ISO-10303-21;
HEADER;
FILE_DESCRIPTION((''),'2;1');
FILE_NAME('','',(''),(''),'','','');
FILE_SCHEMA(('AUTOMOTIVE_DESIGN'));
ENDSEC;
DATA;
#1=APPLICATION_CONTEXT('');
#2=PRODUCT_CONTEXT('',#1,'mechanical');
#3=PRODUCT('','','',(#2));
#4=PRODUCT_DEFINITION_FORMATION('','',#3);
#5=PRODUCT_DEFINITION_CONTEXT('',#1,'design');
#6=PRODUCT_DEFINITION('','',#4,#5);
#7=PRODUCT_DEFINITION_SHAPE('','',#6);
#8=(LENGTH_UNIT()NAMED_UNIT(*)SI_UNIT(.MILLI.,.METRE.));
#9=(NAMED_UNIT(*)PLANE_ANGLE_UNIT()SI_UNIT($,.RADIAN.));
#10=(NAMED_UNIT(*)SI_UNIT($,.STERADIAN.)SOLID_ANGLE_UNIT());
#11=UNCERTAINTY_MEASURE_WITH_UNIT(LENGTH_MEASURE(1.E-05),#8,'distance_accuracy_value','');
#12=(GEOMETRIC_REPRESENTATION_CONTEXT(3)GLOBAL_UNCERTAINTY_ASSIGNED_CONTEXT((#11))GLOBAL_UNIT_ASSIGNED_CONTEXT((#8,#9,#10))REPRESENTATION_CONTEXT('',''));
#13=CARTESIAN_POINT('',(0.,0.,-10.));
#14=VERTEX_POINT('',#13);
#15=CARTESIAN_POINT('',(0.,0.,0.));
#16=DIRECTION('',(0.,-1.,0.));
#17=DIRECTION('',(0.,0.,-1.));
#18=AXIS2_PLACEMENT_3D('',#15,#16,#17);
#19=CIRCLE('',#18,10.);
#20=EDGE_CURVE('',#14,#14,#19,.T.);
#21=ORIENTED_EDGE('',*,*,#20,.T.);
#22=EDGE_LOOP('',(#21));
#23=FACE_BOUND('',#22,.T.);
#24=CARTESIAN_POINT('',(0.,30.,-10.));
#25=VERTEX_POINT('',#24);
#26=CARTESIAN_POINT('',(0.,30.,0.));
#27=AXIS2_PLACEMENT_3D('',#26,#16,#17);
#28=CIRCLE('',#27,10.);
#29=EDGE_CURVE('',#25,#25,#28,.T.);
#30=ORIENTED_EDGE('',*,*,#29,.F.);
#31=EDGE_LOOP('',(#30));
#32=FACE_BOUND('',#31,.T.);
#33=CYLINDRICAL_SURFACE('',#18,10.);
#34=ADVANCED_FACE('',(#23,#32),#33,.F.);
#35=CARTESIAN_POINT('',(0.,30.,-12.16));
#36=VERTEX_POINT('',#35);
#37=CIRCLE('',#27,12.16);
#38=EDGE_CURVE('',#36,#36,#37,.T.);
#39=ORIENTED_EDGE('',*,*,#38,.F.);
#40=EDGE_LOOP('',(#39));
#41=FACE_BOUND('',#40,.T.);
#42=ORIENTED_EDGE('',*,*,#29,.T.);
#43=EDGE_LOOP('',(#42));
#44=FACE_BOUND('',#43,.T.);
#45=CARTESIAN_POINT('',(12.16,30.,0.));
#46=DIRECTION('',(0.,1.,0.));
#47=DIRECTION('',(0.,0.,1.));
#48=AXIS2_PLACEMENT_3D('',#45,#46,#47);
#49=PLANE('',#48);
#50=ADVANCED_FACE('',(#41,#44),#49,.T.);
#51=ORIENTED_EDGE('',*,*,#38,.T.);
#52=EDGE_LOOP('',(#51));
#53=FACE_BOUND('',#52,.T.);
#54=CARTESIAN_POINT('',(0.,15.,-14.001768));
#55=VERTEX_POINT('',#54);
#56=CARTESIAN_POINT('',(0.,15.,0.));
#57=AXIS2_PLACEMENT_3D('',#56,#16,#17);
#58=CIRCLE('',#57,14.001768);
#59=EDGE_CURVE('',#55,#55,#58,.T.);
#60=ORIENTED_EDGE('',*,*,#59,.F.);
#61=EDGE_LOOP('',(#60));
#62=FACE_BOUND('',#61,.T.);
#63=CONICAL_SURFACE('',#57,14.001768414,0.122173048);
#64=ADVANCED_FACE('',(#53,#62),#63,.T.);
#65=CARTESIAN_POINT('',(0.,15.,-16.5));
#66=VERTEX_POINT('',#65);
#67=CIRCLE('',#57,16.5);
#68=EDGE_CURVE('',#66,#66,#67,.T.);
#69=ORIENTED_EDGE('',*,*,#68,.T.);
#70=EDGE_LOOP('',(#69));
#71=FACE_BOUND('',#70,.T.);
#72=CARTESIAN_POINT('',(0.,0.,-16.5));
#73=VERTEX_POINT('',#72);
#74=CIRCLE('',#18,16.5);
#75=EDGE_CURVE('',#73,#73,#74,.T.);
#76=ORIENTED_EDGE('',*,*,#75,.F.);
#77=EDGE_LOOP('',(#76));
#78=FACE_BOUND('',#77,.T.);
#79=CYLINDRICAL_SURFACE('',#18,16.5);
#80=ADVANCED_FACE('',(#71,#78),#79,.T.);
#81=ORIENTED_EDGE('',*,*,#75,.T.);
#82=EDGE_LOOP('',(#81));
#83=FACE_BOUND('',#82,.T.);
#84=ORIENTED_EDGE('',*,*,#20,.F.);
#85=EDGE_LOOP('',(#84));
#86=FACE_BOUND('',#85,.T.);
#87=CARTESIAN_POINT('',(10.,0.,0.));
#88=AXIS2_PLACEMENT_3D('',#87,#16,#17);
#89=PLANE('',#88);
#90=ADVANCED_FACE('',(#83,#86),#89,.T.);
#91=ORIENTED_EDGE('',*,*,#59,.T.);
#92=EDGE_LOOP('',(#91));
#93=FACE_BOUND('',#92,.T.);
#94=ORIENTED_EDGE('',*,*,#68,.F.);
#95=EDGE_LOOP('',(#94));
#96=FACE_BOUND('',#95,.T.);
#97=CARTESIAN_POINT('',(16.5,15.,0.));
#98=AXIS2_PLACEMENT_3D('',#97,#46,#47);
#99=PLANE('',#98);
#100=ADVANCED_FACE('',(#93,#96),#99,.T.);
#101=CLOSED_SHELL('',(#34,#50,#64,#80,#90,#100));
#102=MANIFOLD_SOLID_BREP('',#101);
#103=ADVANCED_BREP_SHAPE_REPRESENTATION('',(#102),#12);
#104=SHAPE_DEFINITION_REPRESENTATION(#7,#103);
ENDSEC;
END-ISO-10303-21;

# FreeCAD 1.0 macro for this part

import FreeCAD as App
import Part
import Sketcher
Q = App.Units.Quantity


def add_polygon(sketch, points):
    """Adds a closed chain of lines whose ends are joined by coincident constraints."""
    first, n = sketch.GeometryCount, len(points)
    for a, b in zip(points, points[1:] + points[:1]):
        sketch.addGeometry(Part.LineSegment(App.Vector(*a, 0), App.Vector(*b, 0)), False)
    for i in range(n):
        sketch.addConstraint(Sketcher.Constraint("Coincident", first + i, 2, first + (i + 1) % n, 1))

doc = App.newDocument("Part")
body = doc.addObject("PartDesign::Body", "Body")

sketch1 = doc.addObject("Sketcher::SketchObject", "Sketch")
body.addObject(sketch1)
sketch1.AttachmentSupport = (doc.XY_Plane, [""])
sketch1.MapMode = "FlatFace"
add_polygon(sketch1, [(10, 30), (10, 0), (16.5, 0), (16.5, 15), (14, 15), (12.2, 30)])
sketch1.addConstraint([
    Sketcher.Constraint("Vertical", 0),
    Sketcher.Constraint("Horizontal", 1),
    Sketcher.Constraint("Vertical", 2),
    Sketcher.Constraint("Horizontal", 3),
    Sketcher.Constraint("Horizontal", 5),
    Sketcher.Constraint("PointOnObject", 0, 2, -1),
    Sketcher.Constraint("DistanceY", 0, 2, 0, 1, 30.0),
    Sketcher.Constraint("DistanceY", 2, 1, 2, 2, 15.0),
    Sketcher.Constraint("Angle", 4, Q("97 deg")),
    Sketcher.Constraint("DistanceX", 1, 1, 1, 2, 6.5),
    Sketcher.Constraint("DistanceX", -1, 1, 0, 2, 10.0),
    Sketcher.Constraint("DistanceX", 5, 2, 5, 1, 2.16),
])
revolution = doc.addObject("PartDesign::Revolution", "Revolution")
body.addObject(revolution)
revolution.Profile = sketch1
revolution.ReferenceAxis = (sketch1, ["V_Axis"])
revolution.Angle = 360

doc.recompute()
